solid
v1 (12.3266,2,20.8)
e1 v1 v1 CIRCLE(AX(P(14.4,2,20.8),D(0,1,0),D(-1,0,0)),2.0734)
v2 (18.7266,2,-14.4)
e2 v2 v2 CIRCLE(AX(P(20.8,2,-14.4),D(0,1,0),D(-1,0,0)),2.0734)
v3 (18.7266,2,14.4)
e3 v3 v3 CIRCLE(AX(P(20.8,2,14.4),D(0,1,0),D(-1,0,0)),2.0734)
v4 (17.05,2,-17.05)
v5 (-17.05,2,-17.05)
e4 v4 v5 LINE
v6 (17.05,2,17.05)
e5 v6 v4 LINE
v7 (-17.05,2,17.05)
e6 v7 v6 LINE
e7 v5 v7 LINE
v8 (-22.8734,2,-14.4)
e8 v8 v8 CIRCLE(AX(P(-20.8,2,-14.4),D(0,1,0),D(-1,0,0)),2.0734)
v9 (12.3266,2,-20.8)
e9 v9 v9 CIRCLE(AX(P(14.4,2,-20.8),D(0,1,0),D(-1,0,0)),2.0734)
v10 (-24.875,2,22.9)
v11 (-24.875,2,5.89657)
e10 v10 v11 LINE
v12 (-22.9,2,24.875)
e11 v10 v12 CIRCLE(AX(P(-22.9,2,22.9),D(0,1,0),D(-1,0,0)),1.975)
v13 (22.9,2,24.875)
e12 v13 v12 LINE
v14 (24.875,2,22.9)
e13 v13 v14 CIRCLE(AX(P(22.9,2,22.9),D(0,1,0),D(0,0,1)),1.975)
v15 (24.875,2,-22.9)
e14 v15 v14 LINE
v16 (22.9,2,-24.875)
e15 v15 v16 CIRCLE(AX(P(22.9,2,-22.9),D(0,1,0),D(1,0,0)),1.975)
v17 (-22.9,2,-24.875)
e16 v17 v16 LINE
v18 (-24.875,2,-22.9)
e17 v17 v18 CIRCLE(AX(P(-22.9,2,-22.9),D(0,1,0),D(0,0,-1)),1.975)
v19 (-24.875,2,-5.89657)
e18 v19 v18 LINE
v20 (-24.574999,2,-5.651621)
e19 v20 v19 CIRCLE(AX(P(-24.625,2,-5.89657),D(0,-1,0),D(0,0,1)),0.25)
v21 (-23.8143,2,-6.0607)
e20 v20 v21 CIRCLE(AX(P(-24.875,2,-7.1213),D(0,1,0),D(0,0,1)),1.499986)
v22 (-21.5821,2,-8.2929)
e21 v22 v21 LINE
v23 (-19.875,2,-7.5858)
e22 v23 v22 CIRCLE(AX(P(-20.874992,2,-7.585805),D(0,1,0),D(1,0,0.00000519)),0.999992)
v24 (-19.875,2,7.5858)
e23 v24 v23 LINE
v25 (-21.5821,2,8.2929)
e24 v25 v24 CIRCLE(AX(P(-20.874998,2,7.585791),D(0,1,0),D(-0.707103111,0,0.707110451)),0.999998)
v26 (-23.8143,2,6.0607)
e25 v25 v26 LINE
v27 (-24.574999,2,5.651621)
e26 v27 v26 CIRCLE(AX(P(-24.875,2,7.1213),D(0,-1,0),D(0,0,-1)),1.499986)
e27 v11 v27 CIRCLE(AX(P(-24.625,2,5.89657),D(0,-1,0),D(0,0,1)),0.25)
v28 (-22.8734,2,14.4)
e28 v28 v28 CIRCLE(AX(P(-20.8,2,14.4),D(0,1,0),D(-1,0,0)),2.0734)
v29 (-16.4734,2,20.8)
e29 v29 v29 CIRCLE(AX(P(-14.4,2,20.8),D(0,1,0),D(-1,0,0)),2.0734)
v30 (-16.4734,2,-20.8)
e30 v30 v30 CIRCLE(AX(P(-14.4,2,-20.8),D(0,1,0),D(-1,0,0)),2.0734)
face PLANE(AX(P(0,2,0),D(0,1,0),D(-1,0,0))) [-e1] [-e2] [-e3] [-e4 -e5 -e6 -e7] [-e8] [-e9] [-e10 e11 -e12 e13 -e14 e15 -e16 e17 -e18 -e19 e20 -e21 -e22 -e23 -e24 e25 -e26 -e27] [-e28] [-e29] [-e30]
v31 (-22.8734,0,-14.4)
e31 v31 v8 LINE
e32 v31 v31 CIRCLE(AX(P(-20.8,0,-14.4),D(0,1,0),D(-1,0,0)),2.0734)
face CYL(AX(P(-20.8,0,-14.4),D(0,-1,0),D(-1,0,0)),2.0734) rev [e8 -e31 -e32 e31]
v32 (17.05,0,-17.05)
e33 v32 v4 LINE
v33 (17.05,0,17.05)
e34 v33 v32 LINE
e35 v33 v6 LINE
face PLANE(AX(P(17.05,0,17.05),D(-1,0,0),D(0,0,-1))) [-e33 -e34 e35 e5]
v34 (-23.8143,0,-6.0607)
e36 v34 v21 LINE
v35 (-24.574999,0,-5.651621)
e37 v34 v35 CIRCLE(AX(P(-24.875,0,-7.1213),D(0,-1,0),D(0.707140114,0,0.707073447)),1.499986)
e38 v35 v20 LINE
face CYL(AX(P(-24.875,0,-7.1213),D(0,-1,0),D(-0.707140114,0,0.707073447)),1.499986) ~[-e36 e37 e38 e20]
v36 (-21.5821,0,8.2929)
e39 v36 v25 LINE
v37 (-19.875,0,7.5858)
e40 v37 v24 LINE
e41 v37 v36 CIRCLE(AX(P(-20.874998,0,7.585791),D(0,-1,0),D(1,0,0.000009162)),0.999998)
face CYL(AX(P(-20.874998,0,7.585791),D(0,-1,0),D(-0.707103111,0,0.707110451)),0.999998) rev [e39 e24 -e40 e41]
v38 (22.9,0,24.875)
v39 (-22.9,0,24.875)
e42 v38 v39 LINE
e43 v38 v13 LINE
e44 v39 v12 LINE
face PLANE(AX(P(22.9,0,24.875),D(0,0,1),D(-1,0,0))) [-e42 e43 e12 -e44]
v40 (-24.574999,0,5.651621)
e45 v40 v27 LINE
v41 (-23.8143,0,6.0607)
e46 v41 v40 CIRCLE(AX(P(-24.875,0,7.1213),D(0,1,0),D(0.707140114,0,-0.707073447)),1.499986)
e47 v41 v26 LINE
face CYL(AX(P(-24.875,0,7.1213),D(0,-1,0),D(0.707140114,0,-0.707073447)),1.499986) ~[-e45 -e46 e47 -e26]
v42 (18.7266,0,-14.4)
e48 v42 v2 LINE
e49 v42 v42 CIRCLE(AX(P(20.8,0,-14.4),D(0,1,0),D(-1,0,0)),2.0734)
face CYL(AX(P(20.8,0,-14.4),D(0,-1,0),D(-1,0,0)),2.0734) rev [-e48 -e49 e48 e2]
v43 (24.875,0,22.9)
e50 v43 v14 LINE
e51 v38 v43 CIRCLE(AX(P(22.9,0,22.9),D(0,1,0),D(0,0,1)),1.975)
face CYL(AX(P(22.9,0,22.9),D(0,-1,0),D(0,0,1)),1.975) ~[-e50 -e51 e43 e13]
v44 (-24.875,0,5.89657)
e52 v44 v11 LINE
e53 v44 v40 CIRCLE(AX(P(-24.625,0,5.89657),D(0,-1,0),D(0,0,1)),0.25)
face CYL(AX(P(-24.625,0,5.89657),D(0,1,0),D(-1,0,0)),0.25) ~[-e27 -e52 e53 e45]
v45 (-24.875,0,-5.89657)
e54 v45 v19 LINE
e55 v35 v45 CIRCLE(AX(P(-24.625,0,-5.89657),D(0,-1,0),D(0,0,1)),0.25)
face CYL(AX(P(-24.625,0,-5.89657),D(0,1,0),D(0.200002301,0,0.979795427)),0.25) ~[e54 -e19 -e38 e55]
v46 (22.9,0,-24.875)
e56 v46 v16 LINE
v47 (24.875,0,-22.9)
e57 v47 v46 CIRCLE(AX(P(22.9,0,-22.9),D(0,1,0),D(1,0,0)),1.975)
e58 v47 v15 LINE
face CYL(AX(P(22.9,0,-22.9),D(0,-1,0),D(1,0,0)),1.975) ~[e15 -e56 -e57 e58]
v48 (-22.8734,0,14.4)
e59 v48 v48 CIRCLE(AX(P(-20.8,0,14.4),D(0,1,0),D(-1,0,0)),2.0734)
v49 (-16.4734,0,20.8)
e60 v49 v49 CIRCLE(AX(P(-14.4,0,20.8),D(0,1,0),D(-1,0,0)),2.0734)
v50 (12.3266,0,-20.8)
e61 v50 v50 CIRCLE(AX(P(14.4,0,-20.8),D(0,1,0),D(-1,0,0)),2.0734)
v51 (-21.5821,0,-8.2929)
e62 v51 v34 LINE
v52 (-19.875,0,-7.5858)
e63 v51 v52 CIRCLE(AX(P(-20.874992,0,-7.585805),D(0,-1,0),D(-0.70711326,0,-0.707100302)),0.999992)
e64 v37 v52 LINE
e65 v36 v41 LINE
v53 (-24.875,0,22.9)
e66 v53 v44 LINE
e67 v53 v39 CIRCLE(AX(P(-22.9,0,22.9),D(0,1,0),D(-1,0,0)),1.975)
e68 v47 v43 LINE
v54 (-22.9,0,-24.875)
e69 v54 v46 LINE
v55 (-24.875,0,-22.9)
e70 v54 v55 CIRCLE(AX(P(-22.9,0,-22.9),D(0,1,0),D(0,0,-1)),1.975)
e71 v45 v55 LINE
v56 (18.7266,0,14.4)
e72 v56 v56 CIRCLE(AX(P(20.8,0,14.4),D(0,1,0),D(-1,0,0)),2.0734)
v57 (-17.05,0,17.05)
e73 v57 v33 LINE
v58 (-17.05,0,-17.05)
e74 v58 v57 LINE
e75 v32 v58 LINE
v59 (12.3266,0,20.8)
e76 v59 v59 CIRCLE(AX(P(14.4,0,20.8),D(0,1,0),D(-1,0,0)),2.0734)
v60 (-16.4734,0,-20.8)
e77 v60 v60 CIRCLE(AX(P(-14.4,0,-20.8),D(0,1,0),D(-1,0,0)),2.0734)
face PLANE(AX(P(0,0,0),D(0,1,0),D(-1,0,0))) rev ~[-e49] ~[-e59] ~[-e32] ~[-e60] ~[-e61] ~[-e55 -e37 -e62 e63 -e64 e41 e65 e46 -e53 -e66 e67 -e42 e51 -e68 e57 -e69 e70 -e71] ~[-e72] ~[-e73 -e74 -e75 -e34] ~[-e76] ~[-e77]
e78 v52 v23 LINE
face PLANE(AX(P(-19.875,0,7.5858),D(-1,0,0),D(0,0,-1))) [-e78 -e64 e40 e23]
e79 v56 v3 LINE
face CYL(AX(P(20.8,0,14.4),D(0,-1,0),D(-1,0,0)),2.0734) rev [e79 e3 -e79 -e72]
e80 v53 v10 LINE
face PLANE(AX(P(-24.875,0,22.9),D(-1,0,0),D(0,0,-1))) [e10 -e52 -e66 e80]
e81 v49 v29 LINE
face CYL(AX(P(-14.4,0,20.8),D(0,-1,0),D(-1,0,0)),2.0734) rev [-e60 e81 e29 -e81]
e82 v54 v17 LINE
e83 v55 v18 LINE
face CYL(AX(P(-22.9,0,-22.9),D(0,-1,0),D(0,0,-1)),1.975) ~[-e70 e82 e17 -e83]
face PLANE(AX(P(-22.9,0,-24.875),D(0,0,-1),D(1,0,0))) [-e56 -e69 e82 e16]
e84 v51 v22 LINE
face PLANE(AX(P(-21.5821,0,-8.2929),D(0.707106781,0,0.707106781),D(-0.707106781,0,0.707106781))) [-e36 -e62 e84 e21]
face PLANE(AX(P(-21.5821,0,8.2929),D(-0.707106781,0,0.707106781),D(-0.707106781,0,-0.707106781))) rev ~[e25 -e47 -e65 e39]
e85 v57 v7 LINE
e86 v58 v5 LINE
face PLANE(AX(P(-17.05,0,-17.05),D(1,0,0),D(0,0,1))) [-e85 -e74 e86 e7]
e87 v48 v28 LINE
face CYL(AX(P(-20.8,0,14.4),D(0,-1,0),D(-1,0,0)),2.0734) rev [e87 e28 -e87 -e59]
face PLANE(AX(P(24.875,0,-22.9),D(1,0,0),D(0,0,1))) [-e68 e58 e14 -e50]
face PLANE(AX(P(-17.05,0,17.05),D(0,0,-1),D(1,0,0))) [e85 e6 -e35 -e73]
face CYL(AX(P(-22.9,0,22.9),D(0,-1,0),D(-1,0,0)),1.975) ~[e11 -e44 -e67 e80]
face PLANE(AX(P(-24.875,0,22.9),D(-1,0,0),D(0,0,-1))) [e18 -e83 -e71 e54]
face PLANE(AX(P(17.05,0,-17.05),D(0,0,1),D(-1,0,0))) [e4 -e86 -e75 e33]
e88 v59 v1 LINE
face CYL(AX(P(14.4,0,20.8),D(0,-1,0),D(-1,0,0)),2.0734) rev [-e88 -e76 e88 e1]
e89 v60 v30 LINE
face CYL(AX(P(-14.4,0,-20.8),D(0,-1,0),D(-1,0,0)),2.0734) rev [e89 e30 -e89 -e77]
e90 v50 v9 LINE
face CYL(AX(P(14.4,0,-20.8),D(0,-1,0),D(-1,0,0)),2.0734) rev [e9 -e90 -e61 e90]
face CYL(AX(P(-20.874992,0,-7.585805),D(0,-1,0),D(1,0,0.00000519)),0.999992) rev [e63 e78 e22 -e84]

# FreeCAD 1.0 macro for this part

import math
import FreeCAD as App
import Part
import Sketcher
Q = App.Units.Quantity


def edges_at(feature, points):
    """Names of the edges that pass closest to the given points."""
    edges = feature.Shape.Edges
    near = lambda p: min(range(len(edges)), key=lambda i: edges[i].distToShape(Part.Vertex(*p))[0])
    return sorted({f"Edge{near(p) + 1}" for p in points})


def add_polygon(sketch, points):
    """Adds a closed chain of lines whose ends are joined by coincident constraints."""
    first, n = sketch.GeometryCount, len(points)
    for a, b in zip(points, points[1:] + points[:1]):
        sketch.addGeometry(Part.LineSegment(App.Vector(*a, 0), App.Vector(*b, 0)), False)
    for i in range(n):
        sketch.addConstraint(Sketcher.Constraint("Coincident", first + i, 2, first + (i + 1) % n, 1))

doc = App.newDocument("Part")
params = doc.addObject("Spreadsheet::Sheet", "Params")
for row, (alias, value) in enumerate([
    ("sketch1_width", "45.8 mm"),
    ("sketch1_width2", "34.1 mm"),
    ("pad1_length", "2 mm"),
    ("sketch2_radius", "1 mm"),
    ("sketch2_radius2", "1.5 mm"),
    ("pocket1_length", "2 mm"),
    ("fillet_radius", "0.25 mm"),
], start=1):
    params.set(f"A{row}", alias)
    params.set(f"B{row}", "=" + value)
    params.setAlias(f"B{row}", alias)

body = doc.addObject("PartDesign::Body", "Body")

sketch1 = body.newObject("Sketcher::SketchObject", "Sketch")
sketch1.AttachmentSupport = (doc.getObject("XZ_Plane"), [""])
sketch1.MapMode = "FlatFace"
sketch1.addGeometry(Part.LineSegment(App.Vector(-22.9, 24.9, 0), App.Vector(22.9, 24.9, 0)), False)
sketch1.addGeometry(Part.ArcOfCircle(Part.Circle(App.Vector(22.9, 22.9, 0), App.Vector(0, 0, 1), 2), math.radians(0), math.radians(90)), False)
sketch1.addGeometry(Part.LineSegment(App.Vector(24.9, 22.9, 0), App.Vector(24.9, -22.9, 0)), False)
sketch1.addGeometry(Part.ArcOfCircle(Part.Circle(App.Vector(22.9, -22.9, 0), App.Vector(0, 0, 1), 2), math.radians(-90), math.radians(0)), False)
sketch1.addGeometry(Part.LineSegment(App.Vector(22.9, -24.9, 0), App.Vector(-22.9, -24.9, 0)), False)
sketch1.addGeometry(Part.ArcOfCircle(Part.Circle(App.Vector(-22.9, -22.9, 0), App.Vector(0, 0, 1), 2), math.radians(180), math.radians(270)), False)
sketch1.addGeometry(Part.LineSegment(App.Vector(-24.9, -22.9, 0), App.Vector(-24.9, 22.9, 0)), False)
sketch1.addGeometry(Part.ArcOfCircle(Part.Circle(App.Vector(-22.9, 22.9, 0), App.Vector(0, 0, 1), 2), math.radians(90), math.radians(180)), False)
sketch1.addGeometry(Part.Circle(App.Vector(14.4, -20.8, 0), App.Vector(0, 0, 1), 2.1), False)
sketch1.addGeometry(Part.Circle(App.Vector(20.8, -14.4, 0), App.Vector(0, 0, 1), 2.1), False)
add_polygon(sketch1, [(17.1, -17.1), (17.1, 17.1), (-17.1, 17.1), (-17.1, -17.1)])
sketch1.addGeometry(Part.Circle(App.Vector(-14.4, -20.8, 0), App.Vector(0, 0, 1), 2.1), False)
sketch1.addGeometry(Part.Circle(App.Vector(-20.8, -14.4, 0), App.Vector(0, 0, 1), 2.1), False)
sketch1.addGeometry(Part.Circle(App.Vector(20.8, 14.4, 0), App.Vector(0, 0, 1), 2.1), False)
sketch1.addGeometry(Part.Circle(App.Vector(14.4, 20.8, 0), App.Vector(0, 0, 1), 2.1), False)
sketch1.addGeometry(Part.Circle(App.Vector(-20.8, 14.4, 0), App.Vector(0, 0, 1), 2.1), False)
sketch1.addGeometry(Part.Circle(App.Vector(-14.4, 20.8, 0), App.Vector(0, 0, 1), 2.1), False)
sketch1.addConstraint([
    Sketcher.Constraint("Tangent", 0, 2, 1, 2),
    Sketcher.Constraint("Tangent", 1, 1, 2, 1),
    Sketcher.Constraint("Tangent", 2, 2, 3, 2),
    Sketcher.Constraint("Tangent", 3, 1, 4, 1),
    Sketcher.Constraint("Tangent", 4, 2, 5, 2),
    Sketcher.Constraint("Tangent", 5, 1, 6, 1),
    Sketcher.Constraint("Tangent", 6, 2, 7, 2),
    Sketcher.Constraint("Tangent", 7, 1, 0, 1),
    Sketcher.Constraint("Horizontal", 0),
    Sketcher.Constraint("Vertical", 2),
    Sketcher.Constraint("Horizontal", 4),
    Sketcher.Constraint("Vertical", 6),
    Sketcher.Constraint("Vertical", 10),
    Sketcher.Constraint("Horizontal", 11),
    Sketcher.Constraint("Vertical", 12),
    Sketcher.Constraint("Horizontal", 13),
    Sketcher.Constraint("Equal", 1, 3),
    Sketcher.Constraint("Equal", 3, 5),
    Sketcher.Constraint("Equal", 5, 7),
    Sketcher.Constraint("Equal", 8, 9),
    Sketcher.Constraint("Equal", 9, 14),
    Sketcher.Constraint("Equal", 14, 15),
    Sketcher.Constraint("Equal", 15, 16),
    Sketcher.Constraint("Equal", 16, 17),
    Sketcher.Constraint("Equal", 17, 18),
    Sketcher.Constraint("Equal", 18, 19),
    Sketcher.Constraint("Symmetric", 1, 3, 5, 3, -1, 1),
    Sketcher.Constraint("Symmetric", 15, 3, 16, 3, -1, 1),
    Sketcher.Constraint("Symmetric", 14, 3, 17, 3, -1, 1),
    Sketcher.Constraint("Symmetric", 9, 3, 18, 3, -1, 1),
    Sketcher.Constraint("Symmetric", 8, 3, 19, 3, -1, 1),
    Sketcher.Constraint("Symmetric", 10, 2, 12, 2, -1, 1),
    Sketcher.Constraint("Symmetric", 8, 3, 14, 3, -2),
    Sketcher.Constraint("Symmetric", 9, 3, 15, 3, -2),
    Sketcher.Constraint("Equal", 4, 2),
    Sketcher.Constraint("Equal", 13, 10),
    Sketcher.Constraint("DistanceX", 0, 1, 0, 2, Q("45.8 mm")),
    Sketcher.Constraint("DistanceX", 11, 2, 11, 1, Q("34.1 mm")),
    Sketcher.Constraint("Radius", 1, Q("1.975 mm")),
    Sketcher.Constraint("Diameter", 8, Q("4.1468 mm")),
    Sketcher.Constraint("DistanceX", -1, 1, 8, 3, Q("14.4 mm")),
    Sketcher.Constraint("DistanceY", 8, 3, -1, 1, Q("20.8 mm")),
    Sketcher.Constraint("DistanceX", -1, 1, 9, 3, Q("20.8 mm")),
    Sketcher.Constraint("DistanceY", 9, 3, -1, 1, Q("14.4 mm")),
])
sketch1.setExpression("Constraints[40]", "Params.sketch1_width")
sketch1.setExpression("Constraints[41]", "Params.sketch1_width2")
pad1 = body.newObject("PartDesign::Pad", "Pad")
pad1.Profile = sketch1
pad1.setExpression("Length", "Params.pad1_length")
pad1.Reversed = True

sketch2 = body.newObject("Sketcher::SketchObject", "Sketch001")
sketch2.AttachmentSupport = (doc.getObject("XZ_Plane"), [""])
sketch2.MapMode = "FlatFace"
sketch2.addGeometry([
    Part.LineSegment(App.Vector(-24.9, -5.6, 0), App.Vector(-24.9, 5.6, 0)),
    Part.ArcOfCircle(Part.Circle(App.Vector(-24.9, 7.1, 0), App.Vector(0, 0, 1), 1.5), math.radians(-90), math.radians(-45)),
    Part.LineSegment(App.Vector(-23.8, 6.1, 0), App.Vector(-21.6, 8.3, 0)),
    Part.ArcOfCircle(Part.Circle(App.Vector(-20.9, 7.6, 0), App.Vector(0, 0, 1), 1), math.radians(0), math.radians(135)),
    Part.LineSegment(App.Vector(-19.9, 7.6, 0), App.Vector(-19.9, -7.6, 0)),
    Part.ArcOfCircle(Part.Circle(App.Vector(-20.9, -7.6, 0), App.Vector(0, 0, 1), 1), math.radians(-135), math.radians(0)),
    Part.LineSegment(App.Vector(-21.6, -8.3, 0), App.Vector(-23.8, -6.1, 0)),
    Part.ArcOfCircle(Part.Circle(App.Vector(-24.9, -7.1, 0), App.Vector(0, 0, 1), 1.5), math.radians(45), math.radians(90)),
], False)
sketch2.addConstraint([
    Sketcher.Constraint("Coincident", 0, 2, 1, 1),
    Sketcher.Constraint("Tangent", 1, 2, 2, 1),
    Sketcher.Constraint("Tangent", 2, 2, 3, 2),
    Sketcher.Constraint("Tangent", 3, 1, 4, 1),
    Sketcher.Constraint("Tangent", 4, 2, 5, 2),
    Sketcher.Constraint("Tangent", 5, 1, 6, 1),
    Sketcher.Constraint("Tangent", 6, 2, 7, 1),
    Sketcher.Constraint("Coincident", 7, 2, 0, 1),
    Sketcher.Constraint("Vertical", 0),
    Sketcher.Constraint("Vertical", 4),
    Sketcher.Constraint("Equal", 3, 5),
    Sketcher.Constraint("Equal", 1, 7),
    Sketcher.Constraint("Symmetric", 1, 3, 7, 3, -1),
    Sketcher.Constraint("Perpendicular", 2, 6),
    Sketcher.Constraint("Vertical", 7, 3, 0, 2),
    Sketcher.Constraint("Vertical", 2, 2, 5, 1),
    Sketcher.Constraint("Radius", 3, Q("1 mm")),
    Sketcher.Constraint("Radius", 1, Q("1.5 mm")),
    Sketcher.Constraint("DistanceY", 4, 2, 4, 1, Q("15.1716 mm")),
    Sketcher.Constraint("DistanceX", 1, 3, 3, 3, Q("4 mm")),
    Sketcher.Constraint("DistanceX", 1, 3, -1, 1, Q("24.875 mm")),
])
sketch2.setExpression("Constraints[16]", "Params.sketch2_radius")
sketch2.setExpression("Constraints[17]", "Params.sketch2_radius2")
pocket1 = body.newObject("PartDesign::Pocket", "Pocket")
pocket1.Profile = sketch2
pocket1.setExpression("Length", "Params.pocket1_length")
doc.recompute()

fillet = body.newObject("PartDesign::Fillet", "Fillet")
fillet.Base = (pocket1, edges_at(pocket1, [(-24.875, 1, -5.621), (-24.875, 1, 5.621)]))
fillet.setExpression("Radius", "Params.fillet_radius")

doc.recompute()
